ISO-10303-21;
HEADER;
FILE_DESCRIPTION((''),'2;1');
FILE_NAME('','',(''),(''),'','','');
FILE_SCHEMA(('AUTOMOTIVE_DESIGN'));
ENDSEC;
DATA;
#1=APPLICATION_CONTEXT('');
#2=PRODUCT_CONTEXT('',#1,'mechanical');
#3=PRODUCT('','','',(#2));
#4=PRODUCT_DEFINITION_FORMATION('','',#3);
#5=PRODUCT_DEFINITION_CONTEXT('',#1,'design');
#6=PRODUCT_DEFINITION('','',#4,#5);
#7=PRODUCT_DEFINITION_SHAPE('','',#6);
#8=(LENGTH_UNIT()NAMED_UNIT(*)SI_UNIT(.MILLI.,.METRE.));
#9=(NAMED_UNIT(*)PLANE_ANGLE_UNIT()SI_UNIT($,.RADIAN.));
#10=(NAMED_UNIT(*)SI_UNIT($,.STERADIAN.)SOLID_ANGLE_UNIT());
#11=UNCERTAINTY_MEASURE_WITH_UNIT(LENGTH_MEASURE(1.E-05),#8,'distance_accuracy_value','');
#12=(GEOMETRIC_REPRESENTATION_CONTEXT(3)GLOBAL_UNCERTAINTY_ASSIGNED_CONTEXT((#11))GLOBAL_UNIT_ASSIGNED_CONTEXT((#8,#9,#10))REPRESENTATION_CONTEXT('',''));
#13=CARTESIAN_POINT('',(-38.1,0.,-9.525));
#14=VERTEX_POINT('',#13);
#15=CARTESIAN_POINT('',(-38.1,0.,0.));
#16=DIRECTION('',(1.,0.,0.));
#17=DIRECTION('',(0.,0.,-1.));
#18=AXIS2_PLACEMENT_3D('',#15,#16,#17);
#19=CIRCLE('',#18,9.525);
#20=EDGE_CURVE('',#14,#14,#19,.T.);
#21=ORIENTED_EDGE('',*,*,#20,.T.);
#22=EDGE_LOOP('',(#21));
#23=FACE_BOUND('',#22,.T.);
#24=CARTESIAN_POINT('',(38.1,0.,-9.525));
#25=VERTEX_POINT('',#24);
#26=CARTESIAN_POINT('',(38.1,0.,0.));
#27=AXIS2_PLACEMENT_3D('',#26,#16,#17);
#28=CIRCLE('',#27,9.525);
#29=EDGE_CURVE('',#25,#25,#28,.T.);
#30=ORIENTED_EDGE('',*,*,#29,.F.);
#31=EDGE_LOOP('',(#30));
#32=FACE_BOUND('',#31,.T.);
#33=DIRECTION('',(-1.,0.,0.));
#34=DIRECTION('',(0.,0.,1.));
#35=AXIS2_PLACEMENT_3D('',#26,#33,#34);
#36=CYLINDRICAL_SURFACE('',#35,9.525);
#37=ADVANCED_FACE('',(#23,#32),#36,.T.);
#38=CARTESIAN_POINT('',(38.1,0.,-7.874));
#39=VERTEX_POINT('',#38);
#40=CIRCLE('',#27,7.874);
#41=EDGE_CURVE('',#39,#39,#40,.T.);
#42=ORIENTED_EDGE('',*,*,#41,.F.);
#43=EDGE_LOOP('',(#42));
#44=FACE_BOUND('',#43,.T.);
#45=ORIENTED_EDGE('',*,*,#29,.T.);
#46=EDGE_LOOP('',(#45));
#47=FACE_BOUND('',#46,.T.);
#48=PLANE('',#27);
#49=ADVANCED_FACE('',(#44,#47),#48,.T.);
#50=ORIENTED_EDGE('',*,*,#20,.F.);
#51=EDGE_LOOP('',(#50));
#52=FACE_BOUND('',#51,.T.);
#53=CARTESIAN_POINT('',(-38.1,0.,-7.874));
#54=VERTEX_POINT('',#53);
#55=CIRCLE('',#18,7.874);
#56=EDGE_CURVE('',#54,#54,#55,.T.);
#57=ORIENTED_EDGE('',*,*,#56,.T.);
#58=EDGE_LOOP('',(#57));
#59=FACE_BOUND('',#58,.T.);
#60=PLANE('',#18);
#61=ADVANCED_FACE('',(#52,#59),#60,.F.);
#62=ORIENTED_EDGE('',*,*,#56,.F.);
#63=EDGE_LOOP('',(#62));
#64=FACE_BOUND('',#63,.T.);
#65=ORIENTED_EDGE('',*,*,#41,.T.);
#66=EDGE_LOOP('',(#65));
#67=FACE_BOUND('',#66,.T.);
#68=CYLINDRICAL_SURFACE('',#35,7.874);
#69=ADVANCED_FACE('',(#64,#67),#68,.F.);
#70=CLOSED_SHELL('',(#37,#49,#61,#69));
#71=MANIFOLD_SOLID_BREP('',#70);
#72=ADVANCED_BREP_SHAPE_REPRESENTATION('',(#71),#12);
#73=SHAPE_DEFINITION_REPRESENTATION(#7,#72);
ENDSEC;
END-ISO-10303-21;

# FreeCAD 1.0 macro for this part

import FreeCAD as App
import Part
import Sketcher

V = App.Vector
Q = App.Units.Quantity

doc = App.newDocument("Part")
body = doc.addObject("PartDesign::Body", "Body")

sketch1 = body.newObject("Sketcher::SketchObject", "Sketch")
sketch1.AttachmentSupport = (doc.getObject("YZ_Plane"), [""])
sketch1.MapMode = "FlatFace"
sketch1.addGeometry([
    Part.Circle(V(0, 0, 0), V(0, 0, 1), 9.525),
    Part.Circle(V(0, 0, 0), V(0, 0, 1), 7.874),
], False)
sketch1.addConstraint([
    Sketcher.Constraint("Coincident", 0, 3, -1, 1),
    Sketcher.Constraint("Coincident", 1, 3, -1, 1),
    Sketcher.Constraint("Diameter", 0, Q("0.75 in")),
    Sketcher.Constraint("Diameter", 1, Q("0.62 in")),
])
pad1 = body.newObject("PartDesign::Pad", "Pad")
pad1.Profile = sketch1
pad1.Length = Q("3 in")
pad1.Midplane = True

doc.recompute()
